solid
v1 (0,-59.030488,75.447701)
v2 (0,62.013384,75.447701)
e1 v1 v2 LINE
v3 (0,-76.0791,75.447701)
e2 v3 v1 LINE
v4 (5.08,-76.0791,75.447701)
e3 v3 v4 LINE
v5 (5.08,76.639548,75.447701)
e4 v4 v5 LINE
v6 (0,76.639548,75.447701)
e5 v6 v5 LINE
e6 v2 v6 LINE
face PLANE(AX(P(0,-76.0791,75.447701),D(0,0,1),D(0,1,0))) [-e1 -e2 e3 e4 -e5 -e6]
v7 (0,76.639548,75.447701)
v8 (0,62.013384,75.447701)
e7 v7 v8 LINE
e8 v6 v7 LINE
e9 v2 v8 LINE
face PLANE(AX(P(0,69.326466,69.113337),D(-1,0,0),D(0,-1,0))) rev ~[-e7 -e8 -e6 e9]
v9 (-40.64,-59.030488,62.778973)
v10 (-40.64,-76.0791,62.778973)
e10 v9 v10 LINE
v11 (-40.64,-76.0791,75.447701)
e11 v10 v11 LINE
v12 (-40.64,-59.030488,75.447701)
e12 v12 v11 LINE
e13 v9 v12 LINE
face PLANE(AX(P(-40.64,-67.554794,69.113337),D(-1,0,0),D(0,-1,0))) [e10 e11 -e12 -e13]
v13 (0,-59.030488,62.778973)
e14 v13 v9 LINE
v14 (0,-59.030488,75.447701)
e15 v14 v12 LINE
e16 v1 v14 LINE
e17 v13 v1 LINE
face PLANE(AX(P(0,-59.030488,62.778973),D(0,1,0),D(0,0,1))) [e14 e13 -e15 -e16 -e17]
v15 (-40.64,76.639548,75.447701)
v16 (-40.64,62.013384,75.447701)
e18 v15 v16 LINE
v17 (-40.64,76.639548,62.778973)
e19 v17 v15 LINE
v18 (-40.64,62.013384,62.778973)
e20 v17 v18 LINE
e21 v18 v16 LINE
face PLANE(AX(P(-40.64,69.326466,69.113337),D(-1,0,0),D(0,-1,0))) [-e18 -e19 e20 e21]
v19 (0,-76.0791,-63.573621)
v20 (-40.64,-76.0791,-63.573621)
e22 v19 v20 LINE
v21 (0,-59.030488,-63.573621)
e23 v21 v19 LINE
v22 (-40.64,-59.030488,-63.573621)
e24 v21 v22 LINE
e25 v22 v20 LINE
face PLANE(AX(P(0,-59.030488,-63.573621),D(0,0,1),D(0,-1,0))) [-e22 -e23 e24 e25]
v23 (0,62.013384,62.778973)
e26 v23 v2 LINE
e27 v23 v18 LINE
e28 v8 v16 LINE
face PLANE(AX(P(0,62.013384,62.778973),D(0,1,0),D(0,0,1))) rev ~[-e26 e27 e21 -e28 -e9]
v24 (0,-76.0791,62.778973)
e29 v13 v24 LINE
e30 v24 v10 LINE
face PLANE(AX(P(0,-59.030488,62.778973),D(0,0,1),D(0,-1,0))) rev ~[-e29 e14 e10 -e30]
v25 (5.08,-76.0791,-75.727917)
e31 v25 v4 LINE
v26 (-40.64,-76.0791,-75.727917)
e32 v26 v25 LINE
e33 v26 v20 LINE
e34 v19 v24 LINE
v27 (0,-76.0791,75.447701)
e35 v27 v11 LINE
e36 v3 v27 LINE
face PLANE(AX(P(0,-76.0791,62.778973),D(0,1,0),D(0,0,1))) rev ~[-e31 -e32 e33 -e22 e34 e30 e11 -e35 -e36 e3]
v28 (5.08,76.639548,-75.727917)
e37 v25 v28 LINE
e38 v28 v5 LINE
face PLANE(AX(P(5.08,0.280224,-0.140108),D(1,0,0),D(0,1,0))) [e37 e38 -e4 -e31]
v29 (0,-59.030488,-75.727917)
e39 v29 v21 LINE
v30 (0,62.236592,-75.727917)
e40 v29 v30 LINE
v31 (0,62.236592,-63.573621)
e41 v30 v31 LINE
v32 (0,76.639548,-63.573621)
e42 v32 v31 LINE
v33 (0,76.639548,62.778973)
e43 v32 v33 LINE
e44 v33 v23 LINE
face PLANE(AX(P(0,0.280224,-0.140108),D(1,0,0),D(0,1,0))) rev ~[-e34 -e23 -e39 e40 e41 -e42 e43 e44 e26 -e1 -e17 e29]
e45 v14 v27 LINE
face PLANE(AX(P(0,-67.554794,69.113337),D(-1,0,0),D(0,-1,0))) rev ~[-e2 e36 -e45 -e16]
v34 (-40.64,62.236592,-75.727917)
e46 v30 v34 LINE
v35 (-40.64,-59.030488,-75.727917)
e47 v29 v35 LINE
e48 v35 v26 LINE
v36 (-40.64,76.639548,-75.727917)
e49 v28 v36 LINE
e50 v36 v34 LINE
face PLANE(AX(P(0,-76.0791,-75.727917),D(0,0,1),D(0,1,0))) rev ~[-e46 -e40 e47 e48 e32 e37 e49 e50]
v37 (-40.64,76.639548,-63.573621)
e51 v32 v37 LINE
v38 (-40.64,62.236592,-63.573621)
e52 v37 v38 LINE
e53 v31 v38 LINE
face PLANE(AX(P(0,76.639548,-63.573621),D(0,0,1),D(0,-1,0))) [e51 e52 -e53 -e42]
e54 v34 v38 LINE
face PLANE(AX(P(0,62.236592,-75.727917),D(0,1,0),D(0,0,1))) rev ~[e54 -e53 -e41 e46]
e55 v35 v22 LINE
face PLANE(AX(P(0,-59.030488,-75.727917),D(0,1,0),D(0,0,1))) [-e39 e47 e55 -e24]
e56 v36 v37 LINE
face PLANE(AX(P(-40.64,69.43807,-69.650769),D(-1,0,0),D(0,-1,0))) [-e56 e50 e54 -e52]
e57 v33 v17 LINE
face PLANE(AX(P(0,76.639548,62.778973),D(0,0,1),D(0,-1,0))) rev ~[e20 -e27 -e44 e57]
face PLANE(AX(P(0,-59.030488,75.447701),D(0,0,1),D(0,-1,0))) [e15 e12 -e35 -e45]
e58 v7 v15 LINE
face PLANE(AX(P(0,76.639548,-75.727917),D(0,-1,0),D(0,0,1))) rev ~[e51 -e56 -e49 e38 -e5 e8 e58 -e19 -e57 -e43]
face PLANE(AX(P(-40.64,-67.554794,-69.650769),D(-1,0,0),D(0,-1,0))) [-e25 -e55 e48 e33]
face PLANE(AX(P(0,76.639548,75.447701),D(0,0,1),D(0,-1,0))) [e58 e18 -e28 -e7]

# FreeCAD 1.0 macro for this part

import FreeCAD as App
import Part
import Sketcher
Q = App.Units.Quantity


def add_polygon(sketch, points):
    """Adds a closed chain of lines whose ends are joined by coincident constraints."""
    first, n = sketch.GeometryCount, len(points)
    for a, b in zip(points, points[1:] + points[:1]):
        sketch.addGeometry(Part.LineSegment(App.Vector(*a, 0), App.Vector(*b, 0)), False)
    for i in range(n):
        sketch.addConstraint(Sketcher.Constraint("Coincident", first + i, 2, first + (i + 1) % n, 1))

doc = App.newDocument("Part")
body = doc.addObject("PartDesign::Body", "Body")

sketch1 = body.newObject("Sketcher::SketchObject", "Sketch")
sketch1.AttachmentSupport = (doc.getObject("YZ_Plane"), [""])
sketch1.MapMode = "FlatFace"
add_polygon(sketch1, [(-76, 75), (-76, -76), (77, -76), (77, 75)])
sketch1.addConstraint([
    Sketcher.Constraint("Vertical", 0),
    Sketcher.Constraint("Horizontal", 1),
    Sketcher.Constraint("Vertical", 2),
    Sketcher.Constraint("Horizontal", 3),
    Sketcher.Constraint("DistanceX", 1, 1, 1, 2, 152.718648),
    Sketcher.Constraint("DistanceX", 0, 2, -1, 1, 76.0791),
    Sketcher.Constraint("DistanceY", -1, 1, 2, 2, 75.447701),
    Sketcher.Constraint("DistanceY", 0, 2, 0, 1, 151.175618),
])
pad1 = body.newObject("PartDesign::Pad", "Pad")
pad1.Profile = sketch1
pad1.Length = Q("0.2 in")

sketch2 = body.newObject("Sketcher::SketchObject", "Sketch001")
sketch2.AttachmentSupport = (doc.getObject("YZ_Plane"), [""])
sketch2.MapMode = "FlatFace"
add_polygon(sketch2, [(-59, 75), (-59, 63), (-76, 63), (-76, 75)])
add_polygon(sketch2, [(-59, -64), (-59, -76), (-76, -76), (-76, -64)])
add_polygon(sketch2, [(77, 75), (77, 63), (62, 63), (62, 75)])
add_polygon(sketch2, [(77, -64), (77, -76), (62, -76), (62, -64)])
sketch2.addConstraint([
    Sketcher.Constraint("Vertical", 0),
    Sketcher.Constraint("Horizontal", 1),
    Sketcher.Constraint("Vertical", 2),
    Sketcher.Constraint("Horizontal", 3),
    Sketcher.Constraint("Vertical", 4),
    Sketcher.Constraint("Horizontal", 5),
    Sketcher.Constraint("Vertical", 6),
    Sketcher.Constraint("Horizontal", 7),
    Sketcher.Constraint("Vertical", 8),
    Sketcher.Constraint("Horizontal", 9),
    Sketcher.Constraint("Vertical", 10),
    Sketcher.Constraint("Horizontal", 11),
    Sketcher.Constraint("Vertical", 12),
    Sketcher.Constraint("Horizontal", 13),
    Sketcher.Constraint("Vertical", 14),
    Sketcher.Constraint("Horizontal", 15),
    Sketcher.Constraint("Horizontal", 1, 2, 8, 2),
    Sketcher.Constraint("Horizontal", 3, 2, 10, 2),
    Sketcher.Constraint("Horizontal", 5, 2, 12, 2),
    Sketcher.Constraint("Horizontal", 7, 2, 14, 2),
    Sketcher.Constraint("Vertical", 3, 2, 4, 2),
    Sketcher.Constraint("Vertical", 2, 2, 5, 2),
    Sketcher.Constraint("Vertical", 11, 2, 12, 2),
    Sketcher.Constraint("DistanceX", 1, 2, 1, 1, 17.048612),
    Sketcher.Constraint("DistanceY", 0, 2, 0, 1, 12.668729),
    Sketcher.Constraint("DistanceX", 1, 2, -1, 1, 76.0791),
    Sketcher.Constraint("DistanceY", -1, 1, 2, 2, 75.447701),
    Sketcher.Constraint("DistanceX", 9, 2, 9, 1, 14.626164),
    Sketcher.Constraint("DistanceX", 13, 2, 13, 1, 14.402956),
    Sketcher.Constraint("DistanceY", 4, 2, 4, 1, 12.154296),
    Sketcher.Constraint("DistanceY", 6, 2, -1, 1, 63.573621),
    Sketcher.Constraint("DistanceX", -1, 1, 8, 2, 76.639548),
])
pad2 = body.newObject("PartDesign::Pad", "Pad001")
pad2.Profile = sketch2
pad2.Length = Q("1.6 in")
pad2.Reversed = True

doc.recompute()
